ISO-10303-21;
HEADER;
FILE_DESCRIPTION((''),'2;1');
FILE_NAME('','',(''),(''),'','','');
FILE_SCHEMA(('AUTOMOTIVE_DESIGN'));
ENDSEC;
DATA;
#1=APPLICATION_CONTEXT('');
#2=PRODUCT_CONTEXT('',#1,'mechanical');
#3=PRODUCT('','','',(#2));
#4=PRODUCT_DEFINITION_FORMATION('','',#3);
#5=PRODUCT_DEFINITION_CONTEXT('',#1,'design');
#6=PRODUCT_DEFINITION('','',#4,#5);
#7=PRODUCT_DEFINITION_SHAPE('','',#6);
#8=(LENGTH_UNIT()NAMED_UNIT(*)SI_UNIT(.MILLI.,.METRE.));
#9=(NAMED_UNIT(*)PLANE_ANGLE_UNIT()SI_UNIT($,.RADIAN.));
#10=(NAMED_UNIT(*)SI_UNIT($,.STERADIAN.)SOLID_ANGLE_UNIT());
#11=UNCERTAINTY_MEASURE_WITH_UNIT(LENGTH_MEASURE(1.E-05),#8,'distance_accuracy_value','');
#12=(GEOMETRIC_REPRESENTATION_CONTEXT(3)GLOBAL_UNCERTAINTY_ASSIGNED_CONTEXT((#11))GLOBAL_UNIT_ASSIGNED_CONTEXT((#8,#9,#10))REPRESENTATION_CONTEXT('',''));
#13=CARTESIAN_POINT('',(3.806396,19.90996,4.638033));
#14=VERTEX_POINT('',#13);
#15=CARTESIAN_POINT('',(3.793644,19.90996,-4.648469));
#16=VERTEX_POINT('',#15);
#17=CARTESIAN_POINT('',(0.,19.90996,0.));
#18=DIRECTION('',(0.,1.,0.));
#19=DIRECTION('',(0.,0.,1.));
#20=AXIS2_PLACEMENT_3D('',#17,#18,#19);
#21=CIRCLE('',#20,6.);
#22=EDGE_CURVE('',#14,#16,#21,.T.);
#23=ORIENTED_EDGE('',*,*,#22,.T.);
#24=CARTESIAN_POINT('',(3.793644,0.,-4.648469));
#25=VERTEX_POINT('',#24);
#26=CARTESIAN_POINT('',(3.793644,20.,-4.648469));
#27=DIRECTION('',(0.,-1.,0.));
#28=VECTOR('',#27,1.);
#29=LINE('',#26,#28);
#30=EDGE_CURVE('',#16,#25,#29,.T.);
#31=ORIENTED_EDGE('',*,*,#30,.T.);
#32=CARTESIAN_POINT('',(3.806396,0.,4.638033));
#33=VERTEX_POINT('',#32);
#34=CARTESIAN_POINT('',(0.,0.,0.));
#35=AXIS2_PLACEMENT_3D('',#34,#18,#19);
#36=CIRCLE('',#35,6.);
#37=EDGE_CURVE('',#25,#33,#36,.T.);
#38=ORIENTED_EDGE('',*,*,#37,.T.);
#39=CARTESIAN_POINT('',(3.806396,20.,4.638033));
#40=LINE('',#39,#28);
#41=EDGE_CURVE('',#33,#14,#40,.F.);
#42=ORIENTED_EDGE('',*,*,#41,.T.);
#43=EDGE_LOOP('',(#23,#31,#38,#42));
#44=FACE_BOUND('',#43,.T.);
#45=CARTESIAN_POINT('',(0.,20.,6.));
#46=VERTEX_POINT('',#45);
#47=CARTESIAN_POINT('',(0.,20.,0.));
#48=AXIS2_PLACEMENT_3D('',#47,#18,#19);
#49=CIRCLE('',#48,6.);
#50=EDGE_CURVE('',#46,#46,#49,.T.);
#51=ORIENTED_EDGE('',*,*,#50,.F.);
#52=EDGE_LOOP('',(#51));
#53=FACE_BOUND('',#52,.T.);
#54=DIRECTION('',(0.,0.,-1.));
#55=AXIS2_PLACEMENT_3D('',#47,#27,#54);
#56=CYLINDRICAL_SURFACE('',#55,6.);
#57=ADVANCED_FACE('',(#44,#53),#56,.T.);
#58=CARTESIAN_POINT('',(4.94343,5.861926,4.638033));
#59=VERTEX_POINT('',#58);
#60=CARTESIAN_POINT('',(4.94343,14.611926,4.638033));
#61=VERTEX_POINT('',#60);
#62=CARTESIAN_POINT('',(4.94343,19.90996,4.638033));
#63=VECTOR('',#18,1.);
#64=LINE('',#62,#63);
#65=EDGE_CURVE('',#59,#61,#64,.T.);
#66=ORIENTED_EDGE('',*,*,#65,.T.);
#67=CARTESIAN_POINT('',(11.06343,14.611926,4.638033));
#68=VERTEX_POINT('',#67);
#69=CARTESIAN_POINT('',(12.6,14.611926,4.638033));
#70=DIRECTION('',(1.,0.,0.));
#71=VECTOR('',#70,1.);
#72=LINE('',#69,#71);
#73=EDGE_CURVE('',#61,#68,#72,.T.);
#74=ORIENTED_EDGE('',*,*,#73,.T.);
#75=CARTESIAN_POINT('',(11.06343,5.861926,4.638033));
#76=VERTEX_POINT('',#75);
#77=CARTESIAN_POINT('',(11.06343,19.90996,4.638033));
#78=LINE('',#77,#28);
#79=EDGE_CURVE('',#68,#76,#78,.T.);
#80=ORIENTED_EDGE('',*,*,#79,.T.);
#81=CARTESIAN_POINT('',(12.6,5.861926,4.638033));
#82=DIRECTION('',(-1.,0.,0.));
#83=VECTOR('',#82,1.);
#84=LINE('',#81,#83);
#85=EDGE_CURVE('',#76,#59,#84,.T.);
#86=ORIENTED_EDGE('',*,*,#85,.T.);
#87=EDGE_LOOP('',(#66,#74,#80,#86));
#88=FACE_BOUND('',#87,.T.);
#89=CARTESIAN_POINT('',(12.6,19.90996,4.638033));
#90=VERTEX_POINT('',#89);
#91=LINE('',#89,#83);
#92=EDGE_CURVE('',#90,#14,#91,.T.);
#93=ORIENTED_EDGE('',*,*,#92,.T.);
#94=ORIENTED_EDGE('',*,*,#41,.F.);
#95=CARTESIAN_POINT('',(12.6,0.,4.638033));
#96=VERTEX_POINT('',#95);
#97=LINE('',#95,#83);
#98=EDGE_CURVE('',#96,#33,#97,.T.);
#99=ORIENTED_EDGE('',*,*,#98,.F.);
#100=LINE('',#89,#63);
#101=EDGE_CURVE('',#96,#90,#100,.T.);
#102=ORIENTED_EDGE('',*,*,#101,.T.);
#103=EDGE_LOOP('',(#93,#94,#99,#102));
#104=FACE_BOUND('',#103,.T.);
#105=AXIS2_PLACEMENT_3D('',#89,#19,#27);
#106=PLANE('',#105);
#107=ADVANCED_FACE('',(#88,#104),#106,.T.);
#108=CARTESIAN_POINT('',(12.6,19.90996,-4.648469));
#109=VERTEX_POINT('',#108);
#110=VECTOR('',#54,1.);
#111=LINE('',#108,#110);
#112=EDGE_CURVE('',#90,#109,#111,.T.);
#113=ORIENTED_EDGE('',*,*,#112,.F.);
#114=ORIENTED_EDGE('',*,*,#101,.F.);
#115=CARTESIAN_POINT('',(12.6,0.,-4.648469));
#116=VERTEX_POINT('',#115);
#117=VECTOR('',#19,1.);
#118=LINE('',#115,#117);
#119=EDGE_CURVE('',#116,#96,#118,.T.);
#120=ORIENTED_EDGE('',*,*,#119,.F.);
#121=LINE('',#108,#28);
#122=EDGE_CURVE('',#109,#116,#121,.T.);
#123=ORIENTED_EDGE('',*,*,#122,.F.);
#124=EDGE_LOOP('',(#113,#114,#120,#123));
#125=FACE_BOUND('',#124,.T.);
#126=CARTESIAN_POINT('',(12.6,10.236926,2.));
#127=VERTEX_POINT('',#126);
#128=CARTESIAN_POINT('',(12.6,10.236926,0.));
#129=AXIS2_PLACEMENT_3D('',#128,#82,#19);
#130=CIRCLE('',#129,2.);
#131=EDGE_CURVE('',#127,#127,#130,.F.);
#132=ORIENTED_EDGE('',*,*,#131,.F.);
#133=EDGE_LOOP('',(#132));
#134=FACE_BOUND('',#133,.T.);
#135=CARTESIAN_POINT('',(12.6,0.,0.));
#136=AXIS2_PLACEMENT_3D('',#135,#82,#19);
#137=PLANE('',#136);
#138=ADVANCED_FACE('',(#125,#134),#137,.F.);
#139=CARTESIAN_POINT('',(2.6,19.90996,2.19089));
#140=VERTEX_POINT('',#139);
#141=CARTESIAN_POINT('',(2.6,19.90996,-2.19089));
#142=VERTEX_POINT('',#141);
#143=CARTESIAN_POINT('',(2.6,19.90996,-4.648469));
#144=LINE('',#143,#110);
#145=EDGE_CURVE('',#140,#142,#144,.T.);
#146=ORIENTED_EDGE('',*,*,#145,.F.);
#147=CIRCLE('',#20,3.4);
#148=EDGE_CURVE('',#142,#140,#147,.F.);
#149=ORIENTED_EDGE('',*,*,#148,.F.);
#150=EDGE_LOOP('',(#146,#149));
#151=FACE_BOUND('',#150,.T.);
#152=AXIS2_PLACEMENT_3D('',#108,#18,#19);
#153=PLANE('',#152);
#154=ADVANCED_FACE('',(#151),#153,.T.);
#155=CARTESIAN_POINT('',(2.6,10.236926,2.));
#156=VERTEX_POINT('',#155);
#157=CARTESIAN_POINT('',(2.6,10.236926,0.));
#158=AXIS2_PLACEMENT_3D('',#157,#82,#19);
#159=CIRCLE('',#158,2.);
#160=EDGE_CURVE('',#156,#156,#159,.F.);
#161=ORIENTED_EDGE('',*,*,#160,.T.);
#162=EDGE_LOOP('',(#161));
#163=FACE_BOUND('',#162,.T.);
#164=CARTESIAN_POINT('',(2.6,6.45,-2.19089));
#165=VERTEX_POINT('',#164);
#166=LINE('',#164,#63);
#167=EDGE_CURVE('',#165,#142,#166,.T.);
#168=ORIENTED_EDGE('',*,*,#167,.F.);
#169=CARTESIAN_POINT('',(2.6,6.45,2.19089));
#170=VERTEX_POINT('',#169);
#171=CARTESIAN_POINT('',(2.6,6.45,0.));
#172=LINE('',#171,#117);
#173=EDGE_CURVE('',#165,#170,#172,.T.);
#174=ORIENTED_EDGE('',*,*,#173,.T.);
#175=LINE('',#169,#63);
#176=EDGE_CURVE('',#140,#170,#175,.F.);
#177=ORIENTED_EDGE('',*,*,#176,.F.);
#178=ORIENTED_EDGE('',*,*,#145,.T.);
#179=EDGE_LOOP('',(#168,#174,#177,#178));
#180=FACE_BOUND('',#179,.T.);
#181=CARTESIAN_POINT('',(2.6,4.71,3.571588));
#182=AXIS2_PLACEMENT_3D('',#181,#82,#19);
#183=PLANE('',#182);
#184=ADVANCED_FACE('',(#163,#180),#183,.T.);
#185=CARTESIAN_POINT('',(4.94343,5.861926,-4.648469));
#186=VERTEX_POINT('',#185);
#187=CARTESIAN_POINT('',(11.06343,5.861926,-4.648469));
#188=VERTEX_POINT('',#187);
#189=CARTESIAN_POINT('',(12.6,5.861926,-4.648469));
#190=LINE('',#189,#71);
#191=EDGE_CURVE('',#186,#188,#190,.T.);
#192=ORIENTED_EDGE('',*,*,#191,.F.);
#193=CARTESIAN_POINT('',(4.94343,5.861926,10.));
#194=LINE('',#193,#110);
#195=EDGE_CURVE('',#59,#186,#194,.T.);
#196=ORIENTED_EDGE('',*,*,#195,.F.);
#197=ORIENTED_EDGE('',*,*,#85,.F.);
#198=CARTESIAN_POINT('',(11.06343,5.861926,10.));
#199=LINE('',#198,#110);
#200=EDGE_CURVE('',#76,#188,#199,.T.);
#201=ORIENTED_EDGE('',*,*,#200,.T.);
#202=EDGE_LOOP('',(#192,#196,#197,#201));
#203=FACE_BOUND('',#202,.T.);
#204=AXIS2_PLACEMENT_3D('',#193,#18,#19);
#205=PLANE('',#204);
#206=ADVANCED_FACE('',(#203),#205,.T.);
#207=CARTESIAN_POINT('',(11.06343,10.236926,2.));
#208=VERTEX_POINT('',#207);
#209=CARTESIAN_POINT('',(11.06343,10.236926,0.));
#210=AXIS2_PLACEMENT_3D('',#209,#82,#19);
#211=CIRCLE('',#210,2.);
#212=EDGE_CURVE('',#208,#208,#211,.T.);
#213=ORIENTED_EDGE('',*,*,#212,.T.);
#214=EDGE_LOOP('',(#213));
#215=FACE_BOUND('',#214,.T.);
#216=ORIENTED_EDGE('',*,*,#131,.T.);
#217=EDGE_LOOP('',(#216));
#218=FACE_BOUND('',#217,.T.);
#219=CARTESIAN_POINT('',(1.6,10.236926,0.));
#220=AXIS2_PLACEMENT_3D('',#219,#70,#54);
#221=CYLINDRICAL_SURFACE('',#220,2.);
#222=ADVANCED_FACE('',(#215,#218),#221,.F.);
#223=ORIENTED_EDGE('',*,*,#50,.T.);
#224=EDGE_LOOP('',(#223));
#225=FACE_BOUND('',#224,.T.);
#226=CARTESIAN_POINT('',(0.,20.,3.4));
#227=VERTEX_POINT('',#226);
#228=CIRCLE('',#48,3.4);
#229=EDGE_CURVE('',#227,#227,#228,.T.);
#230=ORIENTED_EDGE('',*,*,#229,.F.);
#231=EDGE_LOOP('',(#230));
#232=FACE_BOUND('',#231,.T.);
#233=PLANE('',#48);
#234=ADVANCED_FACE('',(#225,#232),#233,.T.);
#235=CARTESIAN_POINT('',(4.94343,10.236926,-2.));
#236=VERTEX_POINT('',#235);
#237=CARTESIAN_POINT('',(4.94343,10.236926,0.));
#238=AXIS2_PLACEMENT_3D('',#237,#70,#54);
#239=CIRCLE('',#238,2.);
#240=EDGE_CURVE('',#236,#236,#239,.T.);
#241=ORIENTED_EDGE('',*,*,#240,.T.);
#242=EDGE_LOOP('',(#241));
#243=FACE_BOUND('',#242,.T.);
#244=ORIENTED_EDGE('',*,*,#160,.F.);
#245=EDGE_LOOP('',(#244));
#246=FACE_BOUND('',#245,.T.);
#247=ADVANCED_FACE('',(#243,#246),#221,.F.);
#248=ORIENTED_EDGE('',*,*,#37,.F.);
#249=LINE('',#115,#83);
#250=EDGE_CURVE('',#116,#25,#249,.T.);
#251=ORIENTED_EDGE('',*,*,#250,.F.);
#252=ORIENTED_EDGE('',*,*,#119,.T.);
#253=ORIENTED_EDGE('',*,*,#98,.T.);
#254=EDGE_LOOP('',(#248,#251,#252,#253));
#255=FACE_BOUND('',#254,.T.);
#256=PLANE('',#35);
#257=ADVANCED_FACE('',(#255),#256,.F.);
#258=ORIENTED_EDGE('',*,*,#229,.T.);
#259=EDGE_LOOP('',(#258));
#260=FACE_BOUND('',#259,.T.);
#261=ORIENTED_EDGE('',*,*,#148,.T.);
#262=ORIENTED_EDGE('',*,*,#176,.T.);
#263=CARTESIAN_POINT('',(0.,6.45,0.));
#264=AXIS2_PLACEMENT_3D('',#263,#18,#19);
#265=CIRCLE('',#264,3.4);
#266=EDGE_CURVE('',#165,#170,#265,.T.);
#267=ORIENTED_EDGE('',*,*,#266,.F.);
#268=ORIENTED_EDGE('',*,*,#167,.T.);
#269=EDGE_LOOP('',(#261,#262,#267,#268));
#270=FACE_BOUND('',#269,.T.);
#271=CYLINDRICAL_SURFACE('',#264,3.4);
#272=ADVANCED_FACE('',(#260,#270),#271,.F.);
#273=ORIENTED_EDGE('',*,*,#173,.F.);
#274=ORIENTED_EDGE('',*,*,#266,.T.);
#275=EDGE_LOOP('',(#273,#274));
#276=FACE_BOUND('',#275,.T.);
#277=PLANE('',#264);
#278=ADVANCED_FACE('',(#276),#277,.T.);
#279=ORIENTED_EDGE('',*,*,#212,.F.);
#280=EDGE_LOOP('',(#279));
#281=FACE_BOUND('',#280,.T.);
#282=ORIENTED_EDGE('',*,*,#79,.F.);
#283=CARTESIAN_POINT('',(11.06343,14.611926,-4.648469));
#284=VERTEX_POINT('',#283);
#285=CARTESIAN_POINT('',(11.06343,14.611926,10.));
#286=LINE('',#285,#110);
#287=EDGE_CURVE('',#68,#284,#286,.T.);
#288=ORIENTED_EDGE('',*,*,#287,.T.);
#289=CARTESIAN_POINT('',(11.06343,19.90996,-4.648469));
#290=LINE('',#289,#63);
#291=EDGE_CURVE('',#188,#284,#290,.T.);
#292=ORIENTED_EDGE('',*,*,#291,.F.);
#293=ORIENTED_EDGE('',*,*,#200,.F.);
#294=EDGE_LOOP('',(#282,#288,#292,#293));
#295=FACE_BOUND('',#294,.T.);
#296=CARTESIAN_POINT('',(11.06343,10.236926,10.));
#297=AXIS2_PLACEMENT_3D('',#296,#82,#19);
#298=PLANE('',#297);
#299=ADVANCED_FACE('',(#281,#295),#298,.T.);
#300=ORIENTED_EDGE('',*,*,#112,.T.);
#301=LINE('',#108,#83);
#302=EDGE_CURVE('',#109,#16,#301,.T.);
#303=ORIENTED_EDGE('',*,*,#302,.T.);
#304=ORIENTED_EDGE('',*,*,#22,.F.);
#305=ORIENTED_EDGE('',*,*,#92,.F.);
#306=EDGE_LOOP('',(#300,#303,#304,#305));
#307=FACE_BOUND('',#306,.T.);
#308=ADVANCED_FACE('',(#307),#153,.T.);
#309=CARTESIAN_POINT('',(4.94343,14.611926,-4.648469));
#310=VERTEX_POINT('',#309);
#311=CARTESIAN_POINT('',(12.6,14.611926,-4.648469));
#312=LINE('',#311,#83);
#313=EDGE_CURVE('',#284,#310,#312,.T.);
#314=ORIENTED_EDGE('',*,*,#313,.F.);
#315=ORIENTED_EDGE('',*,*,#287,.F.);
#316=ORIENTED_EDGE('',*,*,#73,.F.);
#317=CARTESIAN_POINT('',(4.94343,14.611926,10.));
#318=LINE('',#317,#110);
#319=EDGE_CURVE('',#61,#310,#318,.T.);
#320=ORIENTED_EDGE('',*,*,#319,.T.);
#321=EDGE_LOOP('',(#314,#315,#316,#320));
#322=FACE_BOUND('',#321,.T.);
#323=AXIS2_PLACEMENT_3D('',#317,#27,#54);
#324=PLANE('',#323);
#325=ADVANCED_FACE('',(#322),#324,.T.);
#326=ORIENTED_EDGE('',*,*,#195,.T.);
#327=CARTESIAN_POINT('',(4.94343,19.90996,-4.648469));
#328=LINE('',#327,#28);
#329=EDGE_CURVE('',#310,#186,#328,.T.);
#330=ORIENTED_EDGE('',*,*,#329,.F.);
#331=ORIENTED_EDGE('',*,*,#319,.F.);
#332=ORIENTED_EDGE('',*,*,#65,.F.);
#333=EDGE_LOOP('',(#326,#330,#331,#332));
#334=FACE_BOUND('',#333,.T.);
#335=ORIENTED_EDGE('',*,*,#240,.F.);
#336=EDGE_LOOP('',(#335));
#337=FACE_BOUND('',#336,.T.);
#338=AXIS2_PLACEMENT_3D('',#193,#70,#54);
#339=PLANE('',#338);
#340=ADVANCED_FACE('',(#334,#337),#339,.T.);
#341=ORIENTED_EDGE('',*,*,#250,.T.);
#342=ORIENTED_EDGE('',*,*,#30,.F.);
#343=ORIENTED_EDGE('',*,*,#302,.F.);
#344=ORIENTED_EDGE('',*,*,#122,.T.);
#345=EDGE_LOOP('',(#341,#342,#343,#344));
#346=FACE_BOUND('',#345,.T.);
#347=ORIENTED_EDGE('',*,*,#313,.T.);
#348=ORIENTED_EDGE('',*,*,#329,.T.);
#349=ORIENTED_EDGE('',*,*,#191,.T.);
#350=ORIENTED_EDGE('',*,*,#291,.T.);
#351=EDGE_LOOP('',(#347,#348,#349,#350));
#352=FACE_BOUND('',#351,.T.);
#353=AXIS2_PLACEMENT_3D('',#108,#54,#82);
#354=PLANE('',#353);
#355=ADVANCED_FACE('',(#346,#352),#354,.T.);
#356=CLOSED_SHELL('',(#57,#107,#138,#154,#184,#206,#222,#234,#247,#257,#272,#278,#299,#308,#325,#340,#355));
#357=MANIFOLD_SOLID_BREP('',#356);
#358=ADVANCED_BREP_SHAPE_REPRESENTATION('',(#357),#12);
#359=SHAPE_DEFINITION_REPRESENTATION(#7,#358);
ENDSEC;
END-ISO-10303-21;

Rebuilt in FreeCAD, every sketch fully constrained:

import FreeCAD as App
import Part
import Sketcher

V = App.Vector


def add_polygon(sketch, points):
    """Adds a closed chain of lines whose ends are joined by coincident constraints."""
    first, n = sketch.GeometryCount, len(points)
    for a, b in zip(points, points[1:] + points[:1]):
        sketch.addGeometry(Part.LineSegment(App.Vector(*a, 0), App.Vector(*b, 0)), False)
    for i in range(n):
        sketch.addConstraint(Sketcher.Constraint("Coincident", first + i, 2, first + (i + 1) % n, 1))

doc = App.newDocument("Part")
body = doc.addObject("PartDesign::Body", "Body")

# Sketch on XZ plane
sketch1 = body.newObject("Sketcher::SketchObject", "Sketch")
sketch1.AttachmentSupport = (doc.getObject("XZ_Plane"), [""])
sketch1.MapMode = "FlatFace"
sketch1.addGeometry(Part.Circle(V(0, 0, 0), V(0, 0, 1), 6), False)
sketch1.addConstraint([
    Sketcher.Constraint("Coincident", 0, 3, -1, 1),
    Sketcher.Constraint("Diameter", 0, 12.0),
])
pad1 = body.newObject("PartDesign::Pad", "Pad")
pad1.Profile = sketch1
pad1.Length = 20
pad1.Reversed = True

# Sketch on XZ plane
sketch2 = body.newObject("Sketcher::SketchObject", "Sketch001")
sketch2.AttachmentSupport = (doc.getObject("XZ_Plane"), [""])
sketch2.MapMode = "FlatFace"
sketch2.AttachmentOffset = App.Placement(V(0, 0, -20), App.Rotation())
sketch2.addGeometry(Part.Circle(V(0, 0, 0), V(0, 0, 1), 3.4), False)
sketch2.addConstraint([
    Sketcher.Constraint("Coincident", 0, 3, -1, 1),
    Sketcher.Constraint("Diameter", 0, 6.8),
])
pocket1 = body.newObject("PartDesign::Pocket", "Pocket")
pocket1.Profile = sketch2
pocket1.Length = 13.55
pocket1.Reversed = True

# Sketch on XZ plane
sketch3 = body.newObject("Sketcher::SketchObject", "Sketch002")
sketch3.AttachmentSupport = (doc.getObject("XZ_Plane"), [""])
sketch3.MapMode = "FlatFace"
sketch3.AttachmentOffset = App.Placement(V(0, 0, -18.26), App.Rotation())
add_polygon(sketch3, [(2.6, -3.6), (2.6, 3.6), (4.2, 3.6), (4.2, -3.6)])  # lines 0-3
sketch3.addConstraint([
    Sketcher.Constraint("Vertical", 0),
    Sketcher.Constraint("Horizontal", 1),
    Sketcher.Constraint("Vertical", 2),
    Sketcher.Constraint("Horizontal", 3),
    Sketcher.Constraint("DistanceX", -1, 1, 0, 2, 2.6),
    Sketcher.Constraint("DistanceX", 1, 1, 1, 2, 1.550685),
    Sketcher.Constraint("DistanceY", 0, 1, 0, 2, 7.184216),
    Sketcher.Constraint("DistanceY", -1, 1, 0, 2, 3.571588),
])
pad2 = body.newObject("PartDesign::Pad", "Pad001")
pad2.Profile = sketch3
pad2.Length = 13.55

# Sketch on YZ plane
sketch4 = body.newObject("Sketcher::SketchObject", "Sketch003")
sketch4.AttachmentSupport = (doc.getObject("YZ_Plane"), [""])
sketch4.MapMode = "FlatFace"
sketch4.AttachmentOffset = App.Placement(V(0, 0, 2.6), App.Rotation())
add_polygon(sketch4, [(20, -5), (0, -5), (0, 5), (20, 5)])  # lines 0-3
sketch4.addConstraint([
    Sketcher.Constraint("Horizontal", 0),
    Sketcher.Constraint("Vertical", 1),
    Sketcher.Constraint("Horizontal", 2),
    Sketcher.Constraint("Vertical", 3),
    Sketcher.Constraint("PointOnObject", 0, 2, -2),
    Sketcher.Constraint("DistanceY", 1, 1, 1, 2, 9.286502),
    Sketcher.Constraint("DistanceX", 0, 2, 0, 1, 19.90996),
    Sketcher.Constraint("DistanceY", 0, 2, -1, 1, 4.648469),
])
pad3 = body.newObject("PartDesign::Pad", "Pad002")
pad3.Profile = sketch4
pad3.Length = 10

# Sketch on YZ plane
sketch5 = body.newObject("Sketcher::SketchObject", "Sketch004")
sketch5.AttachmentSupport = (doc.getObject("YZ_Plane"), [""])
sketch5.MapMode = "FlatFace"
sketch5.AttachmentOffset = App.Placement(V(0, 0, 2.6), App.Rotation())
sketch5.addGeometry(Part.Circle(V(10.2, 0, 0), V(0, 0, 1), 2), False)
sketch5.addConstraint([
    Sketcher.Constraint("PointOnObject", 0, 3, -1),
    Sketcher.Constraint("Diameter", 0, 4.0),
    Sketcher.Constraint("DistanceX", -1, 1, 0, 3, 10.236926),
])
pocket2 = body.newObject("PartDesign::Pocket", "Pocket001")
pocket2.Profile = sketch5
pocket2.Type = "TwoLengths"
pocket2.Length = 1
pocket2.Length2 = 13.55

# Sketch on XY plane
sketch6 = body.newObject("Sketcher::SketchObject", "Sketch005")
sketch6.AttachmentSupport = (doc.getObject("XY_Plane"), [""])
sketch6.MapMode = "FlatFace"
add_polygon(sketch6, [(11, 6), (11, 15), (5, 15), (5, 6)])  # lines 0-3
sketch6.addConstraint([
    Sketcher.Constraint("Vertical", 0),
    Sketcher.Constraint("Horizontal", 1),
    Sketcher.Constraint("Vertical", 2),
    Sketcher.Constraint("Horizontal", 3),
    Sketcher.Constraint("DistanceX", 1, 2, 1, 1, 6.12),
    Sketcher.Constraint("DistanceY", 0, 1, 0, 2, 8.75),
    Sketcher.Constraint("DistanceX", -1, 1, 0, 2, 11.06343),
    Sketcher.Constraint("DistanceY", -1, 1, 0, 2, 14.611926),
])
pocket3 = body.newObject("PartDesign::Pocket", "Pocket002")
pocket3.Profile = sketch6
pocket3.Type = "ThroughAll"
pocket3.Midplane = True

doc.recompute()
